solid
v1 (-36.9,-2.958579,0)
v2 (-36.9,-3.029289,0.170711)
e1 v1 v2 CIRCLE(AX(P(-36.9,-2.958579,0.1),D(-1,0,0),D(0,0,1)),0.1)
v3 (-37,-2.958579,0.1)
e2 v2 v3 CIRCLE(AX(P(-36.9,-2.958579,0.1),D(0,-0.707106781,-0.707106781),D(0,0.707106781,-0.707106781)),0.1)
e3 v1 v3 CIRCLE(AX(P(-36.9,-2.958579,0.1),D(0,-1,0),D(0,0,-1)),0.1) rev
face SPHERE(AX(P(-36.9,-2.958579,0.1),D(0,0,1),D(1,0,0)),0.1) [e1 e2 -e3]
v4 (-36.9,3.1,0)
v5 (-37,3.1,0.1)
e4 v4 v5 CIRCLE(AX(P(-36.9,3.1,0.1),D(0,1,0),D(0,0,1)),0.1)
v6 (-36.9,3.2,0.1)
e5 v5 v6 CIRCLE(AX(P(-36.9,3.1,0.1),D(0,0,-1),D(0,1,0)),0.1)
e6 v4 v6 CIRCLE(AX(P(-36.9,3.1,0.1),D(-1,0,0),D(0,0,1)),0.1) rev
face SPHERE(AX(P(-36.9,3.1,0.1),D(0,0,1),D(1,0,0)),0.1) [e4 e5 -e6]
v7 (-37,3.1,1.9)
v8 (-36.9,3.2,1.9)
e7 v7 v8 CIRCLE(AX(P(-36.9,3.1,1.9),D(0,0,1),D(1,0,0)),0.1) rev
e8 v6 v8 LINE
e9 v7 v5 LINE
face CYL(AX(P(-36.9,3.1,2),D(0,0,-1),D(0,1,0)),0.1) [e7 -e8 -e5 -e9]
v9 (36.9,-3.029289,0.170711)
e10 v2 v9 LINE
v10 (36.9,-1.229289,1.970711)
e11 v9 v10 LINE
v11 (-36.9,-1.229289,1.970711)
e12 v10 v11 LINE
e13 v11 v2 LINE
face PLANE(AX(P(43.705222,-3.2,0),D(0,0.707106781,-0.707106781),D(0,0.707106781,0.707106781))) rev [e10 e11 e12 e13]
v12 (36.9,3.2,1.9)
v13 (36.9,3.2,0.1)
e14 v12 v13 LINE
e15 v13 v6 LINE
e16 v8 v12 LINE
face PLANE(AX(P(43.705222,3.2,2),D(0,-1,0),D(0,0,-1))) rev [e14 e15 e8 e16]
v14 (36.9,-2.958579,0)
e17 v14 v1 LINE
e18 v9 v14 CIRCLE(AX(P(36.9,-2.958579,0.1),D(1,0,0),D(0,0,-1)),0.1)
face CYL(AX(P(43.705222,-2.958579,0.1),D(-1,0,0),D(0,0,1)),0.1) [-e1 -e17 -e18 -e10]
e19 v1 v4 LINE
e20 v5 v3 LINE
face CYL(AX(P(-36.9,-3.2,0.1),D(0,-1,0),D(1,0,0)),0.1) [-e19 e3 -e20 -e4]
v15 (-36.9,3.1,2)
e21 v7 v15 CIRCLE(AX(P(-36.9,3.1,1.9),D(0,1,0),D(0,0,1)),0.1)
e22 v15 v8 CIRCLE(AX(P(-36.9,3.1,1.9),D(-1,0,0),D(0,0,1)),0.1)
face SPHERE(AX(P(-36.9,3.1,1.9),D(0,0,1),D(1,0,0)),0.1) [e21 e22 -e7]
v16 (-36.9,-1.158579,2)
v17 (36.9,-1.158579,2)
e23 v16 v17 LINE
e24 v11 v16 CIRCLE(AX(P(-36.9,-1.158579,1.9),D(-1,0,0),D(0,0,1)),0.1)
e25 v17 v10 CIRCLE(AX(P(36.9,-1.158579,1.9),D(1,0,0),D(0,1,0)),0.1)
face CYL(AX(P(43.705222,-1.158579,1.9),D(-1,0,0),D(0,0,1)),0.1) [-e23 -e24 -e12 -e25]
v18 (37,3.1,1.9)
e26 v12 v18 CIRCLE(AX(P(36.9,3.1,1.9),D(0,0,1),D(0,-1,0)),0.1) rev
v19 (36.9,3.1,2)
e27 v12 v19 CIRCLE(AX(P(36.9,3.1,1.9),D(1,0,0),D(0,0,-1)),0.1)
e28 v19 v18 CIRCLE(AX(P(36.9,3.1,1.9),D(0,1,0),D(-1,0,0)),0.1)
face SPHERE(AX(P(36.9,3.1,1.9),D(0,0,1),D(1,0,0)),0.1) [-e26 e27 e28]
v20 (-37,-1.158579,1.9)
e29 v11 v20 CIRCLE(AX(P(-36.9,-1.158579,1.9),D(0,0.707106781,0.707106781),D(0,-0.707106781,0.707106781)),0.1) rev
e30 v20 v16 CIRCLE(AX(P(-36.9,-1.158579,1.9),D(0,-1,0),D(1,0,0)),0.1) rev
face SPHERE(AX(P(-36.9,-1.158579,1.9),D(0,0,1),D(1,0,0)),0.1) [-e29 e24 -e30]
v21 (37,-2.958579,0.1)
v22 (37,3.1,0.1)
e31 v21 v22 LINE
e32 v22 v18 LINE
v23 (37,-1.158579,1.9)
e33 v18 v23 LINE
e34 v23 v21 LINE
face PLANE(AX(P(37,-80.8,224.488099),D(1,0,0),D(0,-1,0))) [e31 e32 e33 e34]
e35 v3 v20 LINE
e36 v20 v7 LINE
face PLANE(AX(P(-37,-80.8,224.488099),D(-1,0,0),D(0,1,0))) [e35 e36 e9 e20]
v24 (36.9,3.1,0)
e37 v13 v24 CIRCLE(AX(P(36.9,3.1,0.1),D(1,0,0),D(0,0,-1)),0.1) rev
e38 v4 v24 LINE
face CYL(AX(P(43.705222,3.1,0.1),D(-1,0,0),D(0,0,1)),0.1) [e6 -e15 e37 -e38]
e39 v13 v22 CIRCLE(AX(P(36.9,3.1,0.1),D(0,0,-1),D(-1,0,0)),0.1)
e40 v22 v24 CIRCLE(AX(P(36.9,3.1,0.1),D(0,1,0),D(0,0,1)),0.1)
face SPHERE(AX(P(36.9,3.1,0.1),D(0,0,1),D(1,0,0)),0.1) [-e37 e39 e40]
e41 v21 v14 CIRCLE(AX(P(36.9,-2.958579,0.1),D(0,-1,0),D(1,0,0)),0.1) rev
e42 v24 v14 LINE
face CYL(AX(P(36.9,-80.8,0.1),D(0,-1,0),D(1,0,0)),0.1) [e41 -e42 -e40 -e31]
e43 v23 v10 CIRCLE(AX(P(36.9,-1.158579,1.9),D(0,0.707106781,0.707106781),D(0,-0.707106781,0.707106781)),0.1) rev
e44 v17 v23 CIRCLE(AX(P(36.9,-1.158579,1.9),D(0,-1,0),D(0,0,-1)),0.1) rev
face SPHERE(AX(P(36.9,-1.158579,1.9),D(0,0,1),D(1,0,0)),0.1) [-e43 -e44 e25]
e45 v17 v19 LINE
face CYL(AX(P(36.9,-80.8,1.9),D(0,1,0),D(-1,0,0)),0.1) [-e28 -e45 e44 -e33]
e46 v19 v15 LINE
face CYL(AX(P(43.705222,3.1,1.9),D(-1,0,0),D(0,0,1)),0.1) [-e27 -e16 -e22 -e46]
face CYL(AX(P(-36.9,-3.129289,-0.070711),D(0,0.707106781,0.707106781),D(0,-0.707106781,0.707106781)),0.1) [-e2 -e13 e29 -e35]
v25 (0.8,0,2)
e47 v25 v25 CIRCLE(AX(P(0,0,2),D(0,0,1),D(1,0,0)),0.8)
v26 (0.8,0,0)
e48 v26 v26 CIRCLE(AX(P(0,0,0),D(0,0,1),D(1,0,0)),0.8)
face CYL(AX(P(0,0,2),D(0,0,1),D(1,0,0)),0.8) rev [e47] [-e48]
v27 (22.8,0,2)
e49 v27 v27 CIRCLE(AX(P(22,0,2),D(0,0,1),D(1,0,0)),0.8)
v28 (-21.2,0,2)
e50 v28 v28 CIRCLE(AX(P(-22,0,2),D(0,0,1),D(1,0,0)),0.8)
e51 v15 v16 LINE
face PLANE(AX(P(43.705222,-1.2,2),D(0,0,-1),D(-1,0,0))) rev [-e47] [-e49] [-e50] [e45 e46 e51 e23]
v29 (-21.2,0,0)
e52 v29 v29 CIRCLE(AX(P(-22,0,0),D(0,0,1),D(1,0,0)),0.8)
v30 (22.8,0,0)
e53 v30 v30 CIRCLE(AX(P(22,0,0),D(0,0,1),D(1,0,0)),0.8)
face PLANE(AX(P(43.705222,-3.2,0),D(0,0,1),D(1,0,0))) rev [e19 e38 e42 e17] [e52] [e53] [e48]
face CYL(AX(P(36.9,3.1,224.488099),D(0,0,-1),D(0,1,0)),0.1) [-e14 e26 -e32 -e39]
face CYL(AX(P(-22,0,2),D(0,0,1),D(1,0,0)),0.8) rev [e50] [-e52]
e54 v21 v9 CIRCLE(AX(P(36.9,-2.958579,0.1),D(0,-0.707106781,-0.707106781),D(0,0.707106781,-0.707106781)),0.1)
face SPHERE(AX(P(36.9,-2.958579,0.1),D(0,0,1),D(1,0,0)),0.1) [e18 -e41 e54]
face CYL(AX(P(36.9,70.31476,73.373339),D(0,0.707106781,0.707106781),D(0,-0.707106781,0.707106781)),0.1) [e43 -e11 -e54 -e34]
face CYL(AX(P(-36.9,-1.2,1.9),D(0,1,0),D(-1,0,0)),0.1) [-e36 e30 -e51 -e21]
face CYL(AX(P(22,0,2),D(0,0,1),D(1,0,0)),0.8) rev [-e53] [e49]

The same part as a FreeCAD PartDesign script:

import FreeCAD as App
import Part
import Sketcher

V = App.Vector
Q = App.Units.Quantity

doc = App.newDocument("Part")
params = doc.addObject("Spreadsheet::Sheet", "Params")
for row, (alias, value) in enumerate([
    ("sketch1_height", "2 mm"),
    ("sketch1_width", "6.4 mm"),
    ("pad1_length", "37 mm"),
    ("pad1_length2", "37 mm"),
    ("fillet_radius", "0.1 mm"),
    ("sketch2_diameter", "1.6 mm"),
    ("hole_diameter", "1.6 mm"),
], start=1):
    params.set(f"A{row}", alias)
    params.set(f"B{row}", "=" + value)
    params.setAlias(f"B{row}", alias)

body = doc.addObject("PartDesign::Body", "Body")

sketch1 = doc.addObject("Sketcher::SketchObject", "Sketch")
body.addObject(sketch1)
sketch1.AttachmentSupport = (doc.YZ_Plane, [""])
sketch1.MapMode = "FlatFace"
sketch1.addGeometry(Part.LineSegment(V(-1.2, 2, 0), V(-3.2, 0, 0)), False)
sketch1.addGeometry(Part.LineSegment(V(-3.2, 0, 0), V(3.2, 0, 0)), False)
sketch1.addGeometry(Part.LineSegment(V(3.2, 0, 0), V(3.2, 2, 0)), False)
sketch1.addGeometry(Part.LineSegment(V(3.2, 2, 0), V(-1.2, 2, 0)), False)
sketch1.addConstraint(Sketcher.Constraint("Coincident", 0, 2, 1, 1))
sketch1.addConstraint(Sketcher.Constraint("Coincident", 1, 2, 2, 1))
sketch1.addConstraint(Sketcher.Constraint("Coincident", 2, 2, 3, 1))
sketch1.addConstraint(Sketcher.Constraint("Coincident", 3, 2, 0, 1))
sketch1.addConstraint(Sketcher.Constraint("Horizontal", 1))
sketch1.addConstraint(Sketcher.Constraint("Vertical", 2))
sketch1.addConstraint(Sketcher.Constraint("Horizontal", 3))
sketch1.addConstraint(Sketcher.Constraint("Symmetric", 0, 2, 1, 2, -1, 1))
sketch1.addConstraint(Sketcher.Constraint("DistanceY", 2, 1, 2, 2, Q("2 mm")))
sketch1.addConstraint(Sketcher.Constraint("Angle", 0, Q("-135 deg")))
sketch1.addConstraint(Sketcher.Constraint("DistanceX", 1, 1, 1, 2, Q("6.4 mm")))
sketch1.setExpression("Constraints[8]", "Params.sketch1_height")
sketch1.setExpression("Constraints[10]", "Params.sketch1_width")
pad1 = doc.addObject("PartDesign::Pad", "Pad")
body.addObject(pad1)
pad1.Profile = sketch1
pad1.Type = "TwoLengths"
pad1.setExpression("Length", "Params.pad1_length")
pad1.setExpression("Length2", "Params.pad1_length2")
doc.recompute()

fillet = doc.addObject("PartDesign::Fillet", "Fillet")
body.addObject(fillet)
fillet.Base = (pad1, ["Edge1"])
fillet.UseAllEdges = True
fillet.setExpression("Radius", "Params.fillet_radius")

sketch2 = doc.addObject("Sketcher::SketchObject", "Sketch001")
body.addObject(sketch2)
sketch2.AttachmentSupport = (doc.XY_Plane, [""])
sketch2.MapMode = "FlatFace"
sketch2.AttachmentOffset = App.Placement(V(0, 0, 2), App.Rotation())
sketch2.addGeometry(Part.Circle(V(22, 0, 0), V(0, 0, 1), 0.8), False)
sketch2.addGeometry(Part.Circle(V(0, 0, 0), V(0, 0, 1), 0.8), False)
sketch2.addGeometry(Part.Circle(V(-22, 0, 0), V(0, 0, 1), 0.8), False)
sketch2.addConstraint(Sketcher.Constraint("Coincident", 1, 3, -1, 1))
sketch2.addConstraint(Sketcher.Constraint("Equal", 0, 1))
sketch2.addConstraint(Sketcher.Constraint("Equal", 1, 2))
sketch2.addConstraint(Sketcher.Constraint("Symmetric", 0, 3, 2, 3, -1, 1))
sketch2.addConstraint(Sketcher.Constraint("PointOnObject", 0, 3, -1))
sketch2.addConstraint(Sketcher.Constraint("Diameter", 0, Q("1.6 mm")))
sketch2.addConstraint(Sketcher.Constraint("DistanceX", -1, 1, 0, 3, Q("22 mm")))
sketch2.setExpression("Constraints[5]", "Params.sketch2_diameter")
doc.recompute()
hole = doc.addObject("PartDesign::Hole", "Hole")
body.addObject(hole)
hole.Profile = sketch2
hole.ThreadType = "None"
hole.setExpression("Diameter", "Params.hole_diameter")
hole.DepthType = "ThroughAll"

doc.recompute()
